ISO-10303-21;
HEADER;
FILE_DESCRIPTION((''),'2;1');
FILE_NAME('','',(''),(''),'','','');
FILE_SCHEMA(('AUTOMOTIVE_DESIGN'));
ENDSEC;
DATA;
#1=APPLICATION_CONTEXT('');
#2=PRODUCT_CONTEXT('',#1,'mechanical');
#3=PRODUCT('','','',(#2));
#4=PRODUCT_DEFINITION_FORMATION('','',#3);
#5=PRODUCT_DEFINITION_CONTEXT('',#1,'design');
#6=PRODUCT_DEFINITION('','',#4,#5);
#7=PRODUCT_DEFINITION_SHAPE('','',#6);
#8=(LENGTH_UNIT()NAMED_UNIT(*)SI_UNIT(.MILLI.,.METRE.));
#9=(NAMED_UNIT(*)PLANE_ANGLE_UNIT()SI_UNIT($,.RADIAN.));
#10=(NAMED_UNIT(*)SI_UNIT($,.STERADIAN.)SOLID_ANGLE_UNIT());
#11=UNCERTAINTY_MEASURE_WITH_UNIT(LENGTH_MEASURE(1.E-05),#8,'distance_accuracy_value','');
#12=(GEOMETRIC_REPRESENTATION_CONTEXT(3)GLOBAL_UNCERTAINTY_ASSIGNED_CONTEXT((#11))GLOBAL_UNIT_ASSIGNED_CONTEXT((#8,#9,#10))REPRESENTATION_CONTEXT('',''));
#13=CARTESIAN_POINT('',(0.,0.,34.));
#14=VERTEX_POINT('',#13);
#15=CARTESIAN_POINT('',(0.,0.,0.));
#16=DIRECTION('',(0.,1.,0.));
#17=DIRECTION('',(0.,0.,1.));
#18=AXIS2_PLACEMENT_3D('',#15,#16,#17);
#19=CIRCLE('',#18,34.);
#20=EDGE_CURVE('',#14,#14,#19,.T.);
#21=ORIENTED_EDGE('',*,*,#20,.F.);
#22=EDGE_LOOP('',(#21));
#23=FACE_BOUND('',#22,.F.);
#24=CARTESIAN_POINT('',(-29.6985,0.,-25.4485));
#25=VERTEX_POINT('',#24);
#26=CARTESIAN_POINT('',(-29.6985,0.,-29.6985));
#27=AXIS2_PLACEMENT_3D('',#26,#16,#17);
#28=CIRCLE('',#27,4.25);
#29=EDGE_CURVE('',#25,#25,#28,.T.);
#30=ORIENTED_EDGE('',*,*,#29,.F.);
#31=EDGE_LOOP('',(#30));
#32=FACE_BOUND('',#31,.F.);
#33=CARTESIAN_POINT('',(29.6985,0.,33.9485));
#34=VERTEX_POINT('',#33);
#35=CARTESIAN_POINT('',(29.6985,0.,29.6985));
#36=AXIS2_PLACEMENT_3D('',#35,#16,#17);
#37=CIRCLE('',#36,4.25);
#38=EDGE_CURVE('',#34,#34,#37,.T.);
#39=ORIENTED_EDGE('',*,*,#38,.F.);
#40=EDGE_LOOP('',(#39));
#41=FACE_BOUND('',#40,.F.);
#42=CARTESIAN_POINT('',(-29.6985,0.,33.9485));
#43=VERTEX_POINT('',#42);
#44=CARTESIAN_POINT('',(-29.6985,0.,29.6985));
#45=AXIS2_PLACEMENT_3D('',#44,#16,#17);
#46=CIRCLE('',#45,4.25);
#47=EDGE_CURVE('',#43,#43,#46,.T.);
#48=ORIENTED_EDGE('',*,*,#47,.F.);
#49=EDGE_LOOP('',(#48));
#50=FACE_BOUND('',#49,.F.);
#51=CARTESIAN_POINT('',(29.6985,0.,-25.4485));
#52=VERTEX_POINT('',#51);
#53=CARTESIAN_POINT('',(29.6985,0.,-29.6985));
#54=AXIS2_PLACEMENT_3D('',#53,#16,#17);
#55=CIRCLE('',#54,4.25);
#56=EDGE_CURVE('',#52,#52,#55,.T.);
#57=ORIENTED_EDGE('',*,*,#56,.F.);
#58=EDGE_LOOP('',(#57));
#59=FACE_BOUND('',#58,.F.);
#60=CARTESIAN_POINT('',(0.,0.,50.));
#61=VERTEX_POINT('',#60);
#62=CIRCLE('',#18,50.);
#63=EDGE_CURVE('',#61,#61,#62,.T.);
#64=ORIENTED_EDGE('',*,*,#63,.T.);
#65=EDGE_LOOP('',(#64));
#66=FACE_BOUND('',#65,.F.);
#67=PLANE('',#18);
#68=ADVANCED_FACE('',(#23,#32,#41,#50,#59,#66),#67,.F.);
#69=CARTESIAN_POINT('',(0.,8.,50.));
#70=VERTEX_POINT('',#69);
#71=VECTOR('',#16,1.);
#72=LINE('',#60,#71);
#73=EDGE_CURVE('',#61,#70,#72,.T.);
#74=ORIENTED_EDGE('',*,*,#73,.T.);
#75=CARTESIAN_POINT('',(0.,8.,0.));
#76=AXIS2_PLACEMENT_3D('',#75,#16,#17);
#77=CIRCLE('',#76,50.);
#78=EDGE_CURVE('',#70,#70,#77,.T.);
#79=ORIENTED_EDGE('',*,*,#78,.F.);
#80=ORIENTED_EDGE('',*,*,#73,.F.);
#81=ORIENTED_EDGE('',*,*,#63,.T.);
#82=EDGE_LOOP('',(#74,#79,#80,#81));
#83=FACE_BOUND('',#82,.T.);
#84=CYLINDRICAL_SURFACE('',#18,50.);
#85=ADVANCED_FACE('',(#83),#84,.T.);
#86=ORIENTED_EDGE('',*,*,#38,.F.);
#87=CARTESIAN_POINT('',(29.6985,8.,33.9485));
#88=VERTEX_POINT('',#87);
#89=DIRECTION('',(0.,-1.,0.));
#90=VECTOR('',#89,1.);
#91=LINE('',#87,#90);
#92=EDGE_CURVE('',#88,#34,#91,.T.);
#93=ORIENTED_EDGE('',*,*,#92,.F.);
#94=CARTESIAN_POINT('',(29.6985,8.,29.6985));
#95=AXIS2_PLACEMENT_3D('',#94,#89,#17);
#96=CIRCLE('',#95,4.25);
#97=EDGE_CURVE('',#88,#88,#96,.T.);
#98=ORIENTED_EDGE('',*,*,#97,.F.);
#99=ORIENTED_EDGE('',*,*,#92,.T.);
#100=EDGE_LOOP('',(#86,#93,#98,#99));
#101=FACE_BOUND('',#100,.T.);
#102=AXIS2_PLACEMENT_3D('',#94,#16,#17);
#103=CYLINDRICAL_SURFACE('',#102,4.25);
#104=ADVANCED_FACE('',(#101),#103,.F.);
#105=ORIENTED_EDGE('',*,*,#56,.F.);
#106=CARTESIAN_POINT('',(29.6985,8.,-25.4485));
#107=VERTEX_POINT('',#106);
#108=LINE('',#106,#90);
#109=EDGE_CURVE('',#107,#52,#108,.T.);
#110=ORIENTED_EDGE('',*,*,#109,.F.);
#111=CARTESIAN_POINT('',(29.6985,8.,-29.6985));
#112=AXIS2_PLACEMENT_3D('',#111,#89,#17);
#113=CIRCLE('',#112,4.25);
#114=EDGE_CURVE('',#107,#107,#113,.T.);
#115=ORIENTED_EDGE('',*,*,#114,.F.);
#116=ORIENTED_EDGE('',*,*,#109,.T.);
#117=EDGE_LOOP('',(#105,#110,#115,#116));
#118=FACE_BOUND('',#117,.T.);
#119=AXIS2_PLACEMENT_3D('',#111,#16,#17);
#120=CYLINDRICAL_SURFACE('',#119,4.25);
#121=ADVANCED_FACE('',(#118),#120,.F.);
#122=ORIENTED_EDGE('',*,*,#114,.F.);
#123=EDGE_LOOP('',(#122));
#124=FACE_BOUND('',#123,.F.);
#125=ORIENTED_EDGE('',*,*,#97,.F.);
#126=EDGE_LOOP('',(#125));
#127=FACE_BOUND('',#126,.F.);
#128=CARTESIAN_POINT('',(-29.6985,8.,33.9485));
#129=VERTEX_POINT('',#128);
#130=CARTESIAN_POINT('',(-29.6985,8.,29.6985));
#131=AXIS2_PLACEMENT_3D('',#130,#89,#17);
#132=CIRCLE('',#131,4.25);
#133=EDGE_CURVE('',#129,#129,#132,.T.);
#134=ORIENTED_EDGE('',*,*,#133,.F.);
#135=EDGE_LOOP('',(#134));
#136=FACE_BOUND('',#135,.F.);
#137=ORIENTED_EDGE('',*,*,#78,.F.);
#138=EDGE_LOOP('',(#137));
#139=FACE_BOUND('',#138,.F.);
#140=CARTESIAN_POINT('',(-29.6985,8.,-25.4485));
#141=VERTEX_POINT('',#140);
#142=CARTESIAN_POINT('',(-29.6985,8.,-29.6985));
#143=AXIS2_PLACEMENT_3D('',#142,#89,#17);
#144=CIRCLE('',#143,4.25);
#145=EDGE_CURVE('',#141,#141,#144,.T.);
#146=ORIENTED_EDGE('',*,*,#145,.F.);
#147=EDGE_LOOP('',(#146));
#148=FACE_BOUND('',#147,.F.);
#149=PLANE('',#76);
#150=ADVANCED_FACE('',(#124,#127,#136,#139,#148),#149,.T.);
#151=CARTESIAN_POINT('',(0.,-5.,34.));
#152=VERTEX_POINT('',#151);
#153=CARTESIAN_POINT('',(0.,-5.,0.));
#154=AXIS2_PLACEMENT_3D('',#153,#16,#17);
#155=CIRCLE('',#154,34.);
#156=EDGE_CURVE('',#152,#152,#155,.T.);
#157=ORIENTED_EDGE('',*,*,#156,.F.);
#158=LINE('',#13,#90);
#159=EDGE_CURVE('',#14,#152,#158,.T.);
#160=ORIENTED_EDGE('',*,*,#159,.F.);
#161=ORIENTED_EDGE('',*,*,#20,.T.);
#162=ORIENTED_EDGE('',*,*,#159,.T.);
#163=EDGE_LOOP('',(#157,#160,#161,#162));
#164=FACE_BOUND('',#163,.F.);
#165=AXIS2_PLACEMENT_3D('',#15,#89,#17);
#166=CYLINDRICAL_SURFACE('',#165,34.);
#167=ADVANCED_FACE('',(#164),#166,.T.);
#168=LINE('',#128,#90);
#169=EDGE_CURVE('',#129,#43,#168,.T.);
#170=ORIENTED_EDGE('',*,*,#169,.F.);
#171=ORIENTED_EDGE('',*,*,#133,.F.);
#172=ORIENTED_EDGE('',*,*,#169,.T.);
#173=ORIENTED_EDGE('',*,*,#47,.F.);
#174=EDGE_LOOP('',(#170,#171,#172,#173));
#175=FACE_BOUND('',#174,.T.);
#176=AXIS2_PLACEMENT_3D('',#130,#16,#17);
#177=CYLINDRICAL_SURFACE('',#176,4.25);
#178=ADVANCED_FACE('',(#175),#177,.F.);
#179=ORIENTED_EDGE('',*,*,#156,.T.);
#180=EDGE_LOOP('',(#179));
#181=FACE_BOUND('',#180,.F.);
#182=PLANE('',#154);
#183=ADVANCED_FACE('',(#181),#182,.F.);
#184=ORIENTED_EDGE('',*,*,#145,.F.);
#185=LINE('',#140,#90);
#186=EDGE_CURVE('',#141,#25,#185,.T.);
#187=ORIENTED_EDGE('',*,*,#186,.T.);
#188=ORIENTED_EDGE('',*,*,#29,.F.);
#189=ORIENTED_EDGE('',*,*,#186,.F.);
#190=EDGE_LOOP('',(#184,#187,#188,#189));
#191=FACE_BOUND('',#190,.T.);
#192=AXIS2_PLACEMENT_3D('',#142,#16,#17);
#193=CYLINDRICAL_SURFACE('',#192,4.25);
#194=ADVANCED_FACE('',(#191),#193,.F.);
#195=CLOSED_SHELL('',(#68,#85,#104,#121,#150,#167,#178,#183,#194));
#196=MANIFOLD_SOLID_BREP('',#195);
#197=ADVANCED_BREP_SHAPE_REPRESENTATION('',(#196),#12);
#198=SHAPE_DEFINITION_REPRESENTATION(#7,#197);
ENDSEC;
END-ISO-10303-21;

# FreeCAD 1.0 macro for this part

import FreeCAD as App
import Part
import Sketcher
from FreeCAD import Vector


def add_polygon(sketch, points):
    """Adds a closed chain of lines whose ends are joined by coincident constraints."""
    first, n = sketch.GeometryCount, len(points)
    for a, b in zip(points, points[1:] + points[:1]):
        sketch.addGeometry(Part.LineSegment(App.Vector(*a, 0), App.Vector(*b, 0)), False)
    for i in range(n):
        sketch.addConstraint(Sketcher.Constraint("Coincident", first + i, 2, first + (i + 1) % n, 1))

doc = App.newDocument("Part")
body = doc.addObject("PartDesign::Body", "Body")

# Sketch on YZ plane
sketch1 = doc.addObject("Sketcher::SketchObject", "Sketch")
body.addObject(sketch1)
sketch1.AttachmentSupport = (doc.YZ_Plane, [""])
sketch1.MapMode = "FlatFace"
add_polygon(sketch1, [(8, 50), (0, 50), (0, 34), (-5, 34), (-5, 0), (8, 0)])  # lines 0-5
sketch1.addConstraint(Sketcher.Constraint("Horizontal", 0))
sketch1.addConstraint(Sketcher.Constraint("Vertical", 1))
sketch1.addConstraint(Sketcher.Constraint("Horizontal", 2))
sketch1.addConstraint(Sketcher.Constraint("Vertical", 3))
sketch1.addConstraint(Sketcher.Constraint("Horizontal", 4))
sketch1.addConstraint(Sketcher.Constraint("Vertical", 5))
sketch1.addConstraint(Sketcher.Constraint("PointOnObject", 0, 2, -2))
sketch1.addConstraint(Sketcher.Constraint("PointOnObject", 3, 2, -1))
sketch1.addConstraint(Sketcher.Constraint("DistanceX", 0, 2, 0, 1, 8.0))
sketch1.addConstraint(Sketcher.Constraint("DistanceX", 2, 2, 2, 1, 5.0))
sketch1.addConstraint(Sketcher.Constraint("DistanceY", 1, 2, 1, 1, 16.0))
sketch1.addConstraint(Sketcher.Constraint("DistanceY", 3, 2, 3, 1, 34.0))
revolution = doc.addObject("PartDesign::Revolution", "Revolution")
body.addObject(revolution)
revolution.Profile = sketch1
revolution.ReferenceAxis = (sketch1, ["H_Axis"])
revolution.Angle = 360

# Sketch on XZ plane
sketch2 = doc.addObject("Sketcher::SketchObject", "Sketch001")
body.addObject(sketch2)
sketch2.AttachmentSupport = (doc.XZ_Plane, [""])
sketch2.MapMode = "FlatFace"
sketch2.AttachmentOffset = App.Placement(Vector(0, 0, -8), App.Rotation())
sketch2.addGeometry(Part.Circle(Vector(29.7, -29.7, 0), Vector(0, 0, 1), 4.2), False)
sketch2.addConstraint(Sketcher.Constraint("Diameter", 0, 8.5))
sketch2.addConstraint(Sketcher.Constraint("DistanceX", -1, 1, 0, 3, 29.6985))
sketch2.addConstraint(Sketcher.Constraint("DistanceY", 0, 3, -1, 1, 29.6985))
doc.recompute()
hole = doc.addObject("PartDesign::Hole", "Hole")
body.addObject(hole)
hole.Profile = sketch2
hole.ThreadType = "None"
hole.Diameter = 8.5
hole.DepthType = "ThroughAll"
hole.Reversed = True

# Sketch on XZ plane
sketch3 = doc.addObject("Sketcher::SketchObject", "Sketch002")
body.addObject(sketch3)
sketch3.AttachmentSupport = (doc.XZ_Plane, [""])
sketch3.MapMode = "FlatFace"
sketch3.AttachmentOffset = App.Placement(Vector(0, 0, -8), App.Rotation())
sketch3.addGeometry(Part.Circle(Vector(-29.7, -29.7, 0), Vector(0, 0, 1), 4.2), False)
sketch3.addConstraint(Sketcher.Constraint("Diameter", 0, 8.5))
sketch3.addConstraint(Sketcher.Constraint("DistanceX", 0, 3, -1, 1, 29.6985))
sketch3.addConstraint(Sketcher.Constraint("DistanceY", 0, 3, -1, 1, 29.6985))
doc.recompute()
hole2 = doc.addObject("PartDesign::Hole", "Hole001")
body.addObject(hole2)
hole2.Profile = sketch3
hole2.ThreadType = "None"
hole2.Diameter = 8.5
hole2.DepthType = "ThroughAll"
hole2.Reversed = True

# Sketch on XZ plane
sketch4 = doc.addObject("Sketcher::SketchObject", "Sketch003")
body.addObject(sketch4)
sketch4.AttachmentSupport = (doc.XZ_Plane, [""])
sketch4.MapMode = "FlatFace"
sketch4.AttachmentOffset = App.Placement(Vector(0, 0, -8), App.Rotation())
sketch4.addGeometry(Part.Circle(Vector(29.7, 29.7, 0), Vector(0, 0, 1), 4.2), False)
sketch4.addConstraint(Sketcher.Constraint("Diameter", 0, 8.5))
sketch4.addConstraint(Sketcher.Constraint("DistanceX", -1, 1, 0, 3, 29.6985))
sketch4.addConstraint(Sketcher.Constraint("DistanceY", -1, 1, 0, 3, 29.6985))
doc.recompute()
hole3 = doc.addObject("PartDesign::Hole", "Hole002")
body.addObject(hole3)
hole3.Profile = sketch4
hole3.ThreadType = "None"
hole3.Diameter = 8.5
hole3.DepthType = "ThroughAll"
hole3.Reversed = True

# Sketch on XZ plane
sketch5 = doc.addObject("Sketcher::SketchObject", "Sketch004")
body.addObject(sketch5)
sketch5.AttachmentSupport = (doc.XZ_Plane, [""])
sketch5.MapMode = "FlatFace"
sketch5.AttachmentOffset = App.Placement(Vector(0, 0, -8), App.Rotation())
sketch5.addGeometry(Part.Circle(Vector(-29.7, 29.7, 0), Vector(0, 0, 1), 4.2), False)
sketch5.addConstraint(Sketcher.Constraint("Diameter", 0, 8.5))
sketch5.addConstraint(Sketcher.Constraint("DistanceX", 0, 3, -1, 1, 29.6985))
sketch5.addConstraint(Sketcher.Constraint("DistanceY", -1, 1, 0, 3, 29.6985))
doc.recompute()
hole4 = doc.addObject("PartDesign::Hole", "Hole003")
body.addObject(hole4)
hole4.Profile = sketch5
hole4.ThreadType = "None"
hole4.Diameter = 8.5
hole4.DepthType = "ThroughAll"
hole4.Reversed = True

doc.recompute()
